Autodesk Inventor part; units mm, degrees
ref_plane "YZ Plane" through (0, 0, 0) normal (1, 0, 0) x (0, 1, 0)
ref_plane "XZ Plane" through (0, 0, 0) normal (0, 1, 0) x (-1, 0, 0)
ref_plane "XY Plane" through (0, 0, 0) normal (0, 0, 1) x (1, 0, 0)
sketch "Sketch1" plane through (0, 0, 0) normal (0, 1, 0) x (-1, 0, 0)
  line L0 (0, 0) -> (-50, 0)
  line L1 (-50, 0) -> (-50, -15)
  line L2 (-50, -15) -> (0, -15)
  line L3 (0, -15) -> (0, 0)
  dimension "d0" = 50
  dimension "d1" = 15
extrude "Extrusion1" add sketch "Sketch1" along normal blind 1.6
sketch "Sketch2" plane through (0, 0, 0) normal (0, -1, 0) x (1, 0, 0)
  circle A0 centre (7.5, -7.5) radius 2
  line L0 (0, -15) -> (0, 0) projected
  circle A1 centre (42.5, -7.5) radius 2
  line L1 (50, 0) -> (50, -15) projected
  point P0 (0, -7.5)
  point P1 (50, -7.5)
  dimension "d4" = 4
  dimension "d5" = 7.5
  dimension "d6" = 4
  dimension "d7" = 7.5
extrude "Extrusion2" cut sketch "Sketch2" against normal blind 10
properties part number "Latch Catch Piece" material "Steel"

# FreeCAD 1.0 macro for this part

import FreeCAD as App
import Part
import Sketcher

V = App.Vector
Q = App.Units.Quantity

doc = App.newDocument("Part")
body = doc.addObject("PartDesign::Body", "Body")

# Sketch on XZ plane
sketch1 = body.newObject("Sketcher::SketchObject", "Sketch")
sketch1.AttachmentSupport = (doc.getObject("XZ_Plane"), [""])
sketch1.MapMode = "FlatFace"
sketch1.addGeometry(Part.LineSegment(V(0, -15, 0), V(0, 0, 0)), False)
sketch1.addGeometry(Part.LineSegment(V(0, 0, 0), V(50, 0, 0)), False)
sketch1.addGeometry(Part.LineSegment(V(50, 0, 0), V(50, -15, 0)), False)
sketch1.addGeometry(Part.LineSegment(V(50, -15, 0), V(0, -15, 0)), False)
sketch1.addConstraint(Sketcher.Constraint("Coincident", 0, 2, 1, 1))
sketch1.addConstraint(Sketcher.Constraint("Coincident", 1, 2, 2, 1))
sketch1.addConstraint(Sketcher.Constraint("Coincident", 2, 2, 3, 1))
sketch1.addConstraint(Sketcher.Constraint("Coincident", 3, 2, 0, 1))
sketch1.addConstraint(Sketcher.Constraint("Vertical", 0))
sketch1.addConstraint(Sketcher.Constraint("Horizontal", 1))
sketch1.addConstraint(Sketcher.Constraint("Vertical", 2))
sketch1.addConstraint(Sketcher.Constraint("Horizontal", 3))
sketch1.addConstraint(Sketcher.Constraint("Coincident", 0, 2, -1, 1))
sketch1.addConstraint(Sketcher.Constraint("DistanceX", 1, 1, 1, 2, Q("50 mm")))
sketch1.addConstraint(Sketcher.Constraint("DistanceY", 0, 1, 0, 2, Q("15 mm")))
pad1 = body.newObject("PartDesign::Pad", "Pad")
pad1.Profile = sketch1
pad1.Length = 1.6
pad1.Reversed = True

# Sketch on XZ plane
sketch2 = body.newObject("Sketcher::SketchObject", "Sketch001")
sketch2.AttachmentSupport = (doc.getObject("XZ_Plane"), [""])
sketch2.MapMode = "FlatFace"
sketch2.addGeometry(Part.Circle(V(7.5, -7.5, 0), V(0, 0, 1), 2), False)
sketch2.addGeometry(Part.Circle(V(42.5, -7.5, 0), V(0, 0, 1), 2), False)
sketch2.addConstraint(Sketcher.Constraint("Equal", 0, 1))
sketch2.addConstraint(Sketcher.Constraint("Horizontal", 0, 3, 1, 3))
sketch2.addConstraint(Sketcher.Constraint("Diameter", 0, Q("4 mm")))
sketch2.addConstraint(Sketcher.Constraint("DistanceX", -1, 1, 0, 3, Q("7.5 mm")))
sketch2.addConstraint(Sketcher.Constraint("DistanceY", 0, 3, -1, 1, Q("7.5 mm")))
sketch2.addConstraint(Sketcher.Constraint("DistanceX", 0, 3, 1, 3, Q("35 mm")))
pocket1 = body.newObject("PartDesign::Pocket", "Pocket")
pocket1.Profile = sketch2
pocket1.Length = 10

doc.recompute()
